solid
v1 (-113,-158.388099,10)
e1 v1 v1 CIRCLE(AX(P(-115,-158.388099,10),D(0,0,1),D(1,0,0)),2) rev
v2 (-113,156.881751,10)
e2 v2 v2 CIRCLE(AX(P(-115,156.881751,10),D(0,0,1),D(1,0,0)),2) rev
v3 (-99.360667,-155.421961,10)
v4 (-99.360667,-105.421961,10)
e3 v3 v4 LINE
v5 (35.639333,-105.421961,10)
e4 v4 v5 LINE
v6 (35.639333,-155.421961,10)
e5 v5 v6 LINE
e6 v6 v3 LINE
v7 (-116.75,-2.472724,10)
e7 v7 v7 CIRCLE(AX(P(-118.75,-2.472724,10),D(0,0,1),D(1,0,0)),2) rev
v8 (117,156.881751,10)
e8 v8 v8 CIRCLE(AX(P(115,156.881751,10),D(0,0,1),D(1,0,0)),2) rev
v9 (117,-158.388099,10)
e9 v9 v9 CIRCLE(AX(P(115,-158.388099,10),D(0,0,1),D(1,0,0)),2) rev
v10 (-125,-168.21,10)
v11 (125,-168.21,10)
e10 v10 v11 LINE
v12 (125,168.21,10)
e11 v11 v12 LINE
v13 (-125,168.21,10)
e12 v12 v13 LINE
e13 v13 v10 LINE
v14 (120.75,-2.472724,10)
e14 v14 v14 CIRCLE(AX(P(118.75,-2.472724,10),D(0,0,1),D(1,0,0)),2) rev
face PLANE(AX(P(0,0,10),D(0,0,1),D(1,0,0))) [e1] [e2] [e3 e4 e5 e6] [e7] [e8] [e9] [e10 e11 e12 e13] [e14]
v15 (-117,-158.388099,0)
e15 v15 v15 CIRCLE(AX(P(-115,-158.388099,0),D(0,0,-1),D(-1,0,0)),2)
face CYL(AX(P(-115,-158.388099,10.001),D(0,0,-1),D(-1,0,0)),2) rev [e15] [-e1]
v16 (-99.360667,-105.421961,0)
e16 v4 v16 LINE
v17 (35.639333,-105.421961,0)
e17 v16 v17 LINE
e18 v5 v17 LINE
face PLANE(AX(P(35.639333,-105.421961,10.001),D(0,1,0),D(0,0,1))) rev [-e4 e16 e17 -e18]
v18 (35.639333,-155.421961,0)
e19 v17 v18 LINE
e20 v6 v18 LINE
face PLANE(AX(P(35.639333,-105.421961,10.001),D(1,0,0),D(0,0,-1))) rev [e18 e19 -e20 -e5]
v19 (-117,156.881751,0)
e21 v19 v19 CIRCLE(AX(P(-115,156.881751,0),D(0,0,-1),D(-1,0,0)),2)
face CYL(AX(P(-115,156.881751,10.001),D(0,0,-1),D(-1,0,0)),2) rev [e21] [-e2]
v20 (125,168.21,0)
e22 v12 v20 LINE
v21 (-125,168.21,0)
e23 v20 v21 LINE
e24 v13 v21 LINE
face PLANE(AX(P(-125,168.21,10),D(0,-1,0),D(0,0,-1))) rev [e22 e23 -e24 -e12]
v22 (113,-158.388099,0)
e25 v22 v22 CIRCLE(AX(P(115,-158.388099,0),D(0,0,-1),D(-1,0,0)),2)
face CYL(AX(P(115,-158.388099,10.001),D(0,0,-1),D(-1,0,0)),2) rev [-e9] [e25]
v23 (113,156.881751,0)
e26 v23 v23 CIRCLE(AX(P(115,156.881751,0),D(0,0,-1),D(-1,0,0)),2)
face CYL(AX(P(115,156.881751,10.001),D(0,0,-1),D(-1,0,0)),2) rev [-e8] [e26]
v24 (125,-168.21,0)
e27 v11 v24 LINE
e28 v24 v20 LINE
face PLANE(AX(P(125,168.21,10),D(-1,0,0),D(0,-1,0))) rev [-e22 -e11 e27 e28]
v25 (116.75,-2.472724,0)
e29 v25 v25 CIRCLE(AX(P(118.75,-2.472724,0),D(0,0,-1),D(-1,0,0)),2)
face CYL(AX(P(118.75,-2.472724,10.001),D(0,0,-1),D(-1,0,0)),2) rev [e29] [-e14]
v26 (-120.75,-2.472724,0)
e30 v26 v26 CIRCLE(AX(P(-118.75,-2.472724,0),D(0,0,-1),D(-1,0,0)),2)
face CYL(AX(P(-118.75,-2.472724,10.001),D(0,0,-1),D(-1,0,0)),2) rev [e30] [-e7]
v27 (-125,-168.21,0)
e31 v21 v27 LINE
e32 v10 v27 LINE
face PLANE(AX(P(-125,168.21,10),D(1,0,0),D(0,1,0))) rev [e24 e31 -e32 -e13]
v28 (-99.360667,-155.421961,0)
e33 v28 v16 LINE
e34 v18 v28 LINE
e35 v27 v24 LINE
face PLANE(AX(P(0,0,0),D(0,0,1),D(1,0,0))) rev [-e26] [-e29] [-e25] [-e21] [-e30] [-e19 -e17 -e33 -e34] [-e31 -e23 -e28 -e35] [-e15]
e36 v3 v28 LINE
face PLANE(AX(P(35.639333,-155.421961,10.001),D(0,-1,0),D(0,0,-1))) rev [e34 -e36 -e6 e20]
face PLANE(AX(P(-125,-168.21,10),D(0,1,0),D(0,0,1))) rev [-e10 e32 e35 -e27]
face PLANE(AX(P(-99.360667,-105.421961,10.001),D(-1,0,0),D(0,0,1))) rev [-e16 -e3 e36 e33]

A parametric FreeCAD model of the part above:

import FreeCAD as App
import Part
import Sketcher
from FreeCAD import Vector
Q = App.Units.Quantity

doc = App.newDocument("Part")
body = doc.addObject("PartDesign::Body", "Body")

# Sketch on XY plane
sketch1 = body.newObject("Sketcher::SketchObject", "Sketch")
sketch1.AttachmentSupport = (doc.getObject("XY_Plane"), [""])
sketch1.MapMode = "FlatFace"
sketch1.addGeometry(Part.LineSegment(Vector(-125, 168, 0), Vector(-125, -168, 0)), False)
sketch1.addGeometry(Part.LineSegment(Vector(-125, -168, 0), Vector(125, -168, 0)), False)
sketch1.addGeometry(Part.LineSegment(Vector(125, -168, 0), Vector(125, 168, 0)), False)
sketch1.addGeometry(Part.LineSegment(Vector(125, 168, 0), Vector(-125, 168, 0)), False)
sketch1.addConstraint(Sketcher.Constraint("Coincident", 0, 2, 1, 1))
sketch1.addConstraint(Sketcher.Constraint("Coincident", 1, 2, 2, 1))
sketch1.addConstraint(Sketcher.Constraint("Coincident", 2, 2, 3, 1))
sketch1.addConstraint(Sketcher.Constraint("Coincident", 3, 2, 0, 1))
sketch1.addConstraint(Sketcher.Constraint("Vertical", 0))
sketch1.addConstraint(Sketcher.Constraint("Horizontal", 1))
sketch1.addConstraint(Sketcher.Constraint("Vertical", 2))
sketch1.addConstraint(Sketcher.Constraint("Horizontal", 3))
sketch1.addConstraint(Sketcher.Constraint("Symmetric", 0, 2, 2, 2, -1, 1))
sketch1.addConstraint(Sketcher.Constraint("DistanceX", 1, 1, 1, 2, Q("250 mm")))
sketch1.addConstraint(Sketcher.Constraint("DistanceY", 0, 2, 0, 1, Q("336.42 mm")))
pad1 = body.newObject("PartDesign::Pad", "Pad")
pad1.Profile = sketch1
pad1.Length = 10

# Sketch on XY plane
sketch2 = body.newObject("Sketcher::SketchObject", "Sketch001")
sketch2.AttachmentSupport = (doc.getObject("XY_Plane"), [""])
sketch2.MapMode = "FlatFace"
sketch2.addGeometry(Part.Circle(Vector(-115, 156.9, 0), Vector(0, 0, 1), 2), False)
sketch2.addConstraint(Sketcher.Constraint("Diameter", 0, Q("4 mm")))
sketch2.addConstraint(Sketcher.Constraint("DistanceX", 0, 3, -1, 1, Q("115 mm")))
sketch2.addConstraint(Sketcher.Constraint("DistanceY", -1, 1, 0, 3, Q("156.881751 mm")))
pocket1 = body.newObject("PartDesign::Pocket", "Pocket")
pocket1.Profile = sketch2
pocket1.Type = "UpToFirst"
pocket1.Reversed = True

# Sketch on XY plane
sketch3 = body.newObject("Sketcher::SketchObject", "Sketch002")
sketch3.AttachmentSupport = (doc.getObject("XY_Plane"), [""])
sketch3.MapMode = "FlatFace"
sketch3.addGeometry(Part.Circle(Vector(115, 156.9, 0), Vector(0, 0, 1), 2), False)
sketch3.addConstraint(Sketcher.Constraint("Diameter", 0, Q("4 mm")))
sketch3.addConstraint(Sketcher.Constraint("DistanceX", -1, 1, 0, 3, Q("115 mm")))
sketch3.addConstraint(Sketcher.Constraint("DistanceY", -1, 1, 0, 3, Q("156.881751 mm")))
pocket2 = body.newObject("PartDesign::Pocket", "Pocket001")
pocket2.Profile = sketch3
pocket2.Type = "UpToFirst"
pocket2.Reversed = True

# Sketch on XY plane
sketch4 = body.newObject("Sketcher::SketchObject", "Sketch003")
sketch4.AttachmentSupport = (doc.getObject("XY_Plane"), [""])
sketch4.MapMode = "FlatFace"
sketch4.addGeometry(Part.Circle(Vector(118.8, -2.5, 0), Vector(0, 0, 1), 2), False)
sketch4.addConstraint(Sketcher.Constraint("Diameter", 0, Q("4 mm")))
sketch4.addConstraint(Sketcher.Constraint("DistanceX", -1, 1, 0, 3, Q("118.75 mm")))
sketch4.addConstraint(Sketcher.Constraint("DistanceY", 0, 3, -1, 1, Q("2.472724 mm")))
pocket3 = body.newObject("PartDesign::Pocket", "Pocket002")
pocket3.Profile = sketch4
pocket3.Type = "UpToFirst"
pocket3.Reversed = True

# Sketch on XY plane
sketch5 = body.newObject("Sketcher::SketchObject", "Sketch004")
sketch5.AttachmentSupport = (doc.getObject("XY_Plane"), [""])
sketch5.MapMode = "FlatFace"
sketch5.addGeometry(Part.Circle(Vector(-118.8, -2.5, 0), Vector(0, 0, 1), 2), False)
sketch5.addConstraint(Sketcher.Constraint("Diameter", 0, Q("4 mm")))
sketch5.addConstraint(Sketcher.Constraint("DistanceX", 0, 3, -1, 1, Q("118.75 mm")))
sketch5.addConstraint(Sketcher.Constraint("DistanceY", 0, 3, -1, 1, Q("2.472724 mm")))
pocket4 = body.newObject("PartDesign::Pocket", "Pocket003")
pocket4.Profile = sketch5
pocket4.Type = "UpToFirst"
pocket4.Reversed = True

# Sketch on XY plane
sketch6 = body.newObject("Sketcher::SketchObject", "Sketch005")
sketch6.AttachmentSupport = (doc.getObject("XY_Plane"), [""])
sketch6.MapMode = "FlatFace"
sketch6.addGeometry(Part.Circle(Vector(115, -158.4, 0), Vector(0, 0, 1), 2), False)
sketch6.addConstraint(Sketcher.Constraint("Diameter", 0, Q("4 mm")))
sketch6.addConstraint(Sketcher.Constraint("DistanceX", -1, 1, 0, 3, Q("115 mm")))
sketch6.addConstraint(Sketcher.Constraint("DistanceY", 0, 3, -1, 1, Q("158.388099 mm")))
pocket5 = body.newObject("PartDesign::Pocket", "Pocket004")
pocket5.Profile = sketch6
pocket5.Type = "UpToFirst"
pocket5.Reversed = True

# Sketch on XY plane
sketch7 = body.newObject("Sketcher::SketchObject", "Sketch006")
sketch7.AttachmentSupport = (doc.getObject("XY_Plane"), [""])
sketch7.MapMode = "FlatFace"
sketch7.addGeometry(Part.Circle(Vector(-115, -158.4, 0), Vector(0, 0, 1), 2), False)
sketch7.addConstraint(Sketcher.Constraint("Diameter", 0, Q("4 mm")))
sketch7.addConstraint(Sketcher.Constraint("DistanceX", 0, 3, -1, 1, Q("115 mm")))
sketch7.addConstraint(Sketcher.Constraint("DistanceY", 0, 3, -1, 1, Q("158.388099 mm")))
pocket6 = body.newObject("PartDesign::Pocket", "Pocket005")
pocket6.Profile = sketch7
pocket6.Type = "UpToFirst"
pocket6.Reversed = True

# Sketch on XY plane
sketch8 = body.newObject("Sketcher::SketchObject", "Sketch007")
sketch8.AttachmentSupport = (doc.getObject("XY_Plane"), [""])
sketch8.MapMode = "FlatFace"
sketch8.addGeometry(Part.LineSegment(Vector(36, -105, 0), Vector(36, -155, 0)), False)
sketch8.addGeometry(Part.LineSegment(Vector(36, -155, 0), Vector(-99, -155, 0)), False)
sketch8.addGeometry(Part.LineSegment(Vector(-99, -155, 0), Vector(-99, -105, 0)), False)
sketch8.addGeometry(Part.LineSegment(Vector(-99, -105, 0), Vector(36, -105, 0)), False)
sketch8.addConstraint(Sketcher.Constraint("Coincident", 0, 2, 1, 1))
sketch8.addConstraint(Sketcher.Constraint("Coincident", 1, 2, 2, 1))
sketch8.addConstraint(Sketcher.Constraint("Coincident", 2, 2, 3, 1))
sketch8.addConstraint(Sketcher.Constraint("Coincident", 3, 2, 0, 1))
sketch8.addConstraint(Sketcher.Constraint("Vertical", 0))
sketch8.addConstraint(Sketcher.Constraint("Horizontal", 1))
sketch8.addConstraint(Sketcher.Constraint("Vertical", 2))
sketch8.addConstraint(Sketcher.Constraint("Horizontal", 3))
sketch8.addConstraint(Sketcher.Constraint("DistanceX", 1, 2, 1, 1, Q("135 mm")))
sketch8.addConstraint(Sketcher.Constraint("DistanceY", 0, 2, 0, 1, Q("50 mm")))
sketch8.addConstraint(Sketcher.Constraint("DistanceY", 0, 2, -1, 1, Q("155.421961 mm")))
sketch8.addConstraint(Sketcher.Constraint("DistanceX", -1, 1, 0, 2, Q("35.639333 mm")))
pocket7 = body.newObject("PartDesign::Pocket", "Pocket006")
pocket7.Profile = sketch8
pocket7.Type = "UpToFirst"
pocket7.Reversed = True

doc.recompute()
